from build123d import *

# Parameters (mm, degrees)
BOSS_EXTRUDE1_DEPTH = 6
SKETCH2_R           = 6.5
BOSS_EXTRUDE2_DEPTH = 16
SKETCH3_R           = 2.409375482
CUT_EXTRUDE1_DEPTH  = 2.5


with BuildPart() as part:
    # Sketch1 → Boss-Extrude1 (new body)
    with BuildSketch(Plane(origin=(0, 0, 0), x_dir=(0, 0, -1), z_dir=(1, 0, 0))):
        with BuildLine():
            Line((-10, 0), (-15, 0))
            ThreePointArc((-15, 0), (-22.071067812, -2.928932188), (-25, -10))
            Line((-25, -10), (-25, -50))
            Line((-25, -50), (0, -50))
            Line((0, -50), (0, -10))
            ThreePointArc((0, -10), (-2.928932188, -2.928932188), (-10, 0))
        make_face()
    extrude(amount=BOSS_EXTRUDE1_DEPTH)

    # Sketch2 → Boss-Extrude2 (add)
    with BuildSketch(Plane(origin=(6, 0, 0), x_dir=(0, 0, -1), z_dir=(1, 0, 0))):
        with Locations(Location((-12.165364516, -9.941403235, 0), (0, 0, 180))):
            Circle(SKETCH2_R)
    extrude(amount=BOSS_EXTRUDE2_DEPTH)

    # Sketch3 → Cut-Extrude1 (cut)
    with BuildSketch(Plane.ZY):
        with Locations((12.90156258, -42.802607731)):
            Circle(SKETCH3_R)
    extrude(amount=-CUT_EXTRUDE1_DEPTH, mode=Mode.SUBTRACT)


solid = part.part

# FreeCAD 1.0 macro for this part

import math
import FreeCAD as App
import Part
import Sketcher
from FreeCAD import Vector
Q = App.Units.Quantity

doc = App.newDocument("Part")
body = doc.addObject("PartDesign::Body", "Body")

sketch1 = body.newObject("Sketcher::SketchObject", "Sketch")
sketch1.AttachmentSupport = (doc.getObject("YZ_Plane"), [""])
sketch1.MapMode = "FlatFace"
sketch1.addGeometry(Part.LineSegment(Vector(0, 10, 0), Vector(0, 15, 0)), False)
sketch1.addGeometry(Part.ArcOfCircle(Part.Circle(Vector(-10, 15, 0), Vector(0, 0, 1), 10), math.radians(0), math.radians(90)), False)
sketch1.addGeometry(Part.LineSegment(Vector(-10, 25, 0), Vector(-50, 25, 0)), False)
sketch1.addGeometry(Part.LineSegment(Vector(-50, 25, 0), Vector(-50, 0, 0)), False)
sketch1.addGeometry(Part.LineSegment(Vector(-50, 0, 0), Vector(-10, 0, 0)), False)
sketch1.addGeometry(Part.ArcOfCircle(Part.Circle(Vector(-10, 10, 0), Vector(0, 0, 1), 10), math.radians(-90), math.radians(0)), False)
sketch1.addConstraint(Sketcher.Constraint("Tangent", 0, 2, 1, 1))
sketch1.addConstraint(Sketcher.Constraint("Tangent", 1, 2, 2, 1))
sketch1.addConstraint(Sketcher.Constraint("Coincident", 2, 2, 3, 1))
sketch1.addConstraint(Sketcher.Constraint("Coincident", 3, 2, 4, 1))
sketch1.addConstraint(Sketcher.Constraint("Tangent", 4, 2, 5, 1))
sketch1.addConstraint(Sketcher.Constraint("Tangent", 5, 2, 0, 1))
sketch1.addConstraint(Sketcher.Constraint("Vertical", 0))
sketch1.addConstraint(Sketcher.Constraint("Horizontal", 2))
sketch1.addConstraint(Sketcher.Constraint("Vertical", 3))
sketch1.addConstraint(Sketcher.Constraint("Horizontal", 4))
sketch1.addConstraint(Sketcher.Constraint("Equal", 1, 5))
sketch1.addConstraint(Sketcher.Constraint("PointOnObject", 0, 2, -2))
sketch1.addConstraint(Sketcher.Constraint("PointOnObject", 3, 2, -1))
sketch1.addConstraint(Sketcher.Constraint("Radius", 1, Q("10 mm")))
sketch1.addConstraint(Sketcher.Constraint("DistanceX", 2, 2, 2, 1, Q("40 mm")))
sketch1.addConstraint(Sketcher.Constraint("DistanceY", 0, 1, 0, 2, Q("5 mm")))
pad1 = body.newObject("PartDesign::Pad", "Pad")
pad1.Profile = sketch1
pad1.Length = 6

sketch2 = body.newObject("Sketcher::SketchObject", "Sketch001")
sketch2.AttachmentSupport = (doc.getObject("YZ_Plane"), [""])
sketch2.MapMode = "FlatFace"
sketch2.AttachmentOffset = App.Placement(Vector(0, 0, 6), App.Rotation())
sketch2.addGeometry(Part.Circle(Vector(-10, 12, 0), Vector(0, 0, 1), 6), False)
sketch2.addConstraint(Sketcher.Constraint("Diameter", 0, Q("13 mm")))
sketch2.addConstraint(Sketcher.Constraint("DistanceX", 0, 3, -1, 1, Q("9.941403 mm")))
sketch2.addConstraint(Sketcher.Constraint("DistanceY", -1, 1, 0, 3, Q("12.165365 mm")))
pad2 = body.newObject("PartDesign::Pad", "Pad001")
pad2.Profile = sketch2
pad2.Length = 16

sketch3 = body.newObject("Sketcher::SketchObject", "Sketch002")
sketch3.AttachmentSupport = (doc.getObject("YZ_Plane"), [""])
sketch3.MapMode = "FlatFace"
sketch3.addGeometry(Part.Circle(Vector(-42.8, 12.9, 0), Vector(0, 0, 1), 2.4), False)
sketch3.addConstraint(Sketcher.Constraint("Diameter", 0, Q("4.818751 mm")))
sketch3.addConstraint(Sketcher.Constraint("DistanceX", 0, 3, -1, 1, Q("42.802608 mm")))
sketch3.addConstraint(Sketcher.Constraint("DistanceY", -1, 1, 0, 3, Q("12.901563 mm")))
pocket1 = body.newObject("PartDesign::Pocket", "Pocket")
pocket1.Profile = sketch3
pocket1.Length = 2.5
pocket1.Reversed = True

doc.recompute()
